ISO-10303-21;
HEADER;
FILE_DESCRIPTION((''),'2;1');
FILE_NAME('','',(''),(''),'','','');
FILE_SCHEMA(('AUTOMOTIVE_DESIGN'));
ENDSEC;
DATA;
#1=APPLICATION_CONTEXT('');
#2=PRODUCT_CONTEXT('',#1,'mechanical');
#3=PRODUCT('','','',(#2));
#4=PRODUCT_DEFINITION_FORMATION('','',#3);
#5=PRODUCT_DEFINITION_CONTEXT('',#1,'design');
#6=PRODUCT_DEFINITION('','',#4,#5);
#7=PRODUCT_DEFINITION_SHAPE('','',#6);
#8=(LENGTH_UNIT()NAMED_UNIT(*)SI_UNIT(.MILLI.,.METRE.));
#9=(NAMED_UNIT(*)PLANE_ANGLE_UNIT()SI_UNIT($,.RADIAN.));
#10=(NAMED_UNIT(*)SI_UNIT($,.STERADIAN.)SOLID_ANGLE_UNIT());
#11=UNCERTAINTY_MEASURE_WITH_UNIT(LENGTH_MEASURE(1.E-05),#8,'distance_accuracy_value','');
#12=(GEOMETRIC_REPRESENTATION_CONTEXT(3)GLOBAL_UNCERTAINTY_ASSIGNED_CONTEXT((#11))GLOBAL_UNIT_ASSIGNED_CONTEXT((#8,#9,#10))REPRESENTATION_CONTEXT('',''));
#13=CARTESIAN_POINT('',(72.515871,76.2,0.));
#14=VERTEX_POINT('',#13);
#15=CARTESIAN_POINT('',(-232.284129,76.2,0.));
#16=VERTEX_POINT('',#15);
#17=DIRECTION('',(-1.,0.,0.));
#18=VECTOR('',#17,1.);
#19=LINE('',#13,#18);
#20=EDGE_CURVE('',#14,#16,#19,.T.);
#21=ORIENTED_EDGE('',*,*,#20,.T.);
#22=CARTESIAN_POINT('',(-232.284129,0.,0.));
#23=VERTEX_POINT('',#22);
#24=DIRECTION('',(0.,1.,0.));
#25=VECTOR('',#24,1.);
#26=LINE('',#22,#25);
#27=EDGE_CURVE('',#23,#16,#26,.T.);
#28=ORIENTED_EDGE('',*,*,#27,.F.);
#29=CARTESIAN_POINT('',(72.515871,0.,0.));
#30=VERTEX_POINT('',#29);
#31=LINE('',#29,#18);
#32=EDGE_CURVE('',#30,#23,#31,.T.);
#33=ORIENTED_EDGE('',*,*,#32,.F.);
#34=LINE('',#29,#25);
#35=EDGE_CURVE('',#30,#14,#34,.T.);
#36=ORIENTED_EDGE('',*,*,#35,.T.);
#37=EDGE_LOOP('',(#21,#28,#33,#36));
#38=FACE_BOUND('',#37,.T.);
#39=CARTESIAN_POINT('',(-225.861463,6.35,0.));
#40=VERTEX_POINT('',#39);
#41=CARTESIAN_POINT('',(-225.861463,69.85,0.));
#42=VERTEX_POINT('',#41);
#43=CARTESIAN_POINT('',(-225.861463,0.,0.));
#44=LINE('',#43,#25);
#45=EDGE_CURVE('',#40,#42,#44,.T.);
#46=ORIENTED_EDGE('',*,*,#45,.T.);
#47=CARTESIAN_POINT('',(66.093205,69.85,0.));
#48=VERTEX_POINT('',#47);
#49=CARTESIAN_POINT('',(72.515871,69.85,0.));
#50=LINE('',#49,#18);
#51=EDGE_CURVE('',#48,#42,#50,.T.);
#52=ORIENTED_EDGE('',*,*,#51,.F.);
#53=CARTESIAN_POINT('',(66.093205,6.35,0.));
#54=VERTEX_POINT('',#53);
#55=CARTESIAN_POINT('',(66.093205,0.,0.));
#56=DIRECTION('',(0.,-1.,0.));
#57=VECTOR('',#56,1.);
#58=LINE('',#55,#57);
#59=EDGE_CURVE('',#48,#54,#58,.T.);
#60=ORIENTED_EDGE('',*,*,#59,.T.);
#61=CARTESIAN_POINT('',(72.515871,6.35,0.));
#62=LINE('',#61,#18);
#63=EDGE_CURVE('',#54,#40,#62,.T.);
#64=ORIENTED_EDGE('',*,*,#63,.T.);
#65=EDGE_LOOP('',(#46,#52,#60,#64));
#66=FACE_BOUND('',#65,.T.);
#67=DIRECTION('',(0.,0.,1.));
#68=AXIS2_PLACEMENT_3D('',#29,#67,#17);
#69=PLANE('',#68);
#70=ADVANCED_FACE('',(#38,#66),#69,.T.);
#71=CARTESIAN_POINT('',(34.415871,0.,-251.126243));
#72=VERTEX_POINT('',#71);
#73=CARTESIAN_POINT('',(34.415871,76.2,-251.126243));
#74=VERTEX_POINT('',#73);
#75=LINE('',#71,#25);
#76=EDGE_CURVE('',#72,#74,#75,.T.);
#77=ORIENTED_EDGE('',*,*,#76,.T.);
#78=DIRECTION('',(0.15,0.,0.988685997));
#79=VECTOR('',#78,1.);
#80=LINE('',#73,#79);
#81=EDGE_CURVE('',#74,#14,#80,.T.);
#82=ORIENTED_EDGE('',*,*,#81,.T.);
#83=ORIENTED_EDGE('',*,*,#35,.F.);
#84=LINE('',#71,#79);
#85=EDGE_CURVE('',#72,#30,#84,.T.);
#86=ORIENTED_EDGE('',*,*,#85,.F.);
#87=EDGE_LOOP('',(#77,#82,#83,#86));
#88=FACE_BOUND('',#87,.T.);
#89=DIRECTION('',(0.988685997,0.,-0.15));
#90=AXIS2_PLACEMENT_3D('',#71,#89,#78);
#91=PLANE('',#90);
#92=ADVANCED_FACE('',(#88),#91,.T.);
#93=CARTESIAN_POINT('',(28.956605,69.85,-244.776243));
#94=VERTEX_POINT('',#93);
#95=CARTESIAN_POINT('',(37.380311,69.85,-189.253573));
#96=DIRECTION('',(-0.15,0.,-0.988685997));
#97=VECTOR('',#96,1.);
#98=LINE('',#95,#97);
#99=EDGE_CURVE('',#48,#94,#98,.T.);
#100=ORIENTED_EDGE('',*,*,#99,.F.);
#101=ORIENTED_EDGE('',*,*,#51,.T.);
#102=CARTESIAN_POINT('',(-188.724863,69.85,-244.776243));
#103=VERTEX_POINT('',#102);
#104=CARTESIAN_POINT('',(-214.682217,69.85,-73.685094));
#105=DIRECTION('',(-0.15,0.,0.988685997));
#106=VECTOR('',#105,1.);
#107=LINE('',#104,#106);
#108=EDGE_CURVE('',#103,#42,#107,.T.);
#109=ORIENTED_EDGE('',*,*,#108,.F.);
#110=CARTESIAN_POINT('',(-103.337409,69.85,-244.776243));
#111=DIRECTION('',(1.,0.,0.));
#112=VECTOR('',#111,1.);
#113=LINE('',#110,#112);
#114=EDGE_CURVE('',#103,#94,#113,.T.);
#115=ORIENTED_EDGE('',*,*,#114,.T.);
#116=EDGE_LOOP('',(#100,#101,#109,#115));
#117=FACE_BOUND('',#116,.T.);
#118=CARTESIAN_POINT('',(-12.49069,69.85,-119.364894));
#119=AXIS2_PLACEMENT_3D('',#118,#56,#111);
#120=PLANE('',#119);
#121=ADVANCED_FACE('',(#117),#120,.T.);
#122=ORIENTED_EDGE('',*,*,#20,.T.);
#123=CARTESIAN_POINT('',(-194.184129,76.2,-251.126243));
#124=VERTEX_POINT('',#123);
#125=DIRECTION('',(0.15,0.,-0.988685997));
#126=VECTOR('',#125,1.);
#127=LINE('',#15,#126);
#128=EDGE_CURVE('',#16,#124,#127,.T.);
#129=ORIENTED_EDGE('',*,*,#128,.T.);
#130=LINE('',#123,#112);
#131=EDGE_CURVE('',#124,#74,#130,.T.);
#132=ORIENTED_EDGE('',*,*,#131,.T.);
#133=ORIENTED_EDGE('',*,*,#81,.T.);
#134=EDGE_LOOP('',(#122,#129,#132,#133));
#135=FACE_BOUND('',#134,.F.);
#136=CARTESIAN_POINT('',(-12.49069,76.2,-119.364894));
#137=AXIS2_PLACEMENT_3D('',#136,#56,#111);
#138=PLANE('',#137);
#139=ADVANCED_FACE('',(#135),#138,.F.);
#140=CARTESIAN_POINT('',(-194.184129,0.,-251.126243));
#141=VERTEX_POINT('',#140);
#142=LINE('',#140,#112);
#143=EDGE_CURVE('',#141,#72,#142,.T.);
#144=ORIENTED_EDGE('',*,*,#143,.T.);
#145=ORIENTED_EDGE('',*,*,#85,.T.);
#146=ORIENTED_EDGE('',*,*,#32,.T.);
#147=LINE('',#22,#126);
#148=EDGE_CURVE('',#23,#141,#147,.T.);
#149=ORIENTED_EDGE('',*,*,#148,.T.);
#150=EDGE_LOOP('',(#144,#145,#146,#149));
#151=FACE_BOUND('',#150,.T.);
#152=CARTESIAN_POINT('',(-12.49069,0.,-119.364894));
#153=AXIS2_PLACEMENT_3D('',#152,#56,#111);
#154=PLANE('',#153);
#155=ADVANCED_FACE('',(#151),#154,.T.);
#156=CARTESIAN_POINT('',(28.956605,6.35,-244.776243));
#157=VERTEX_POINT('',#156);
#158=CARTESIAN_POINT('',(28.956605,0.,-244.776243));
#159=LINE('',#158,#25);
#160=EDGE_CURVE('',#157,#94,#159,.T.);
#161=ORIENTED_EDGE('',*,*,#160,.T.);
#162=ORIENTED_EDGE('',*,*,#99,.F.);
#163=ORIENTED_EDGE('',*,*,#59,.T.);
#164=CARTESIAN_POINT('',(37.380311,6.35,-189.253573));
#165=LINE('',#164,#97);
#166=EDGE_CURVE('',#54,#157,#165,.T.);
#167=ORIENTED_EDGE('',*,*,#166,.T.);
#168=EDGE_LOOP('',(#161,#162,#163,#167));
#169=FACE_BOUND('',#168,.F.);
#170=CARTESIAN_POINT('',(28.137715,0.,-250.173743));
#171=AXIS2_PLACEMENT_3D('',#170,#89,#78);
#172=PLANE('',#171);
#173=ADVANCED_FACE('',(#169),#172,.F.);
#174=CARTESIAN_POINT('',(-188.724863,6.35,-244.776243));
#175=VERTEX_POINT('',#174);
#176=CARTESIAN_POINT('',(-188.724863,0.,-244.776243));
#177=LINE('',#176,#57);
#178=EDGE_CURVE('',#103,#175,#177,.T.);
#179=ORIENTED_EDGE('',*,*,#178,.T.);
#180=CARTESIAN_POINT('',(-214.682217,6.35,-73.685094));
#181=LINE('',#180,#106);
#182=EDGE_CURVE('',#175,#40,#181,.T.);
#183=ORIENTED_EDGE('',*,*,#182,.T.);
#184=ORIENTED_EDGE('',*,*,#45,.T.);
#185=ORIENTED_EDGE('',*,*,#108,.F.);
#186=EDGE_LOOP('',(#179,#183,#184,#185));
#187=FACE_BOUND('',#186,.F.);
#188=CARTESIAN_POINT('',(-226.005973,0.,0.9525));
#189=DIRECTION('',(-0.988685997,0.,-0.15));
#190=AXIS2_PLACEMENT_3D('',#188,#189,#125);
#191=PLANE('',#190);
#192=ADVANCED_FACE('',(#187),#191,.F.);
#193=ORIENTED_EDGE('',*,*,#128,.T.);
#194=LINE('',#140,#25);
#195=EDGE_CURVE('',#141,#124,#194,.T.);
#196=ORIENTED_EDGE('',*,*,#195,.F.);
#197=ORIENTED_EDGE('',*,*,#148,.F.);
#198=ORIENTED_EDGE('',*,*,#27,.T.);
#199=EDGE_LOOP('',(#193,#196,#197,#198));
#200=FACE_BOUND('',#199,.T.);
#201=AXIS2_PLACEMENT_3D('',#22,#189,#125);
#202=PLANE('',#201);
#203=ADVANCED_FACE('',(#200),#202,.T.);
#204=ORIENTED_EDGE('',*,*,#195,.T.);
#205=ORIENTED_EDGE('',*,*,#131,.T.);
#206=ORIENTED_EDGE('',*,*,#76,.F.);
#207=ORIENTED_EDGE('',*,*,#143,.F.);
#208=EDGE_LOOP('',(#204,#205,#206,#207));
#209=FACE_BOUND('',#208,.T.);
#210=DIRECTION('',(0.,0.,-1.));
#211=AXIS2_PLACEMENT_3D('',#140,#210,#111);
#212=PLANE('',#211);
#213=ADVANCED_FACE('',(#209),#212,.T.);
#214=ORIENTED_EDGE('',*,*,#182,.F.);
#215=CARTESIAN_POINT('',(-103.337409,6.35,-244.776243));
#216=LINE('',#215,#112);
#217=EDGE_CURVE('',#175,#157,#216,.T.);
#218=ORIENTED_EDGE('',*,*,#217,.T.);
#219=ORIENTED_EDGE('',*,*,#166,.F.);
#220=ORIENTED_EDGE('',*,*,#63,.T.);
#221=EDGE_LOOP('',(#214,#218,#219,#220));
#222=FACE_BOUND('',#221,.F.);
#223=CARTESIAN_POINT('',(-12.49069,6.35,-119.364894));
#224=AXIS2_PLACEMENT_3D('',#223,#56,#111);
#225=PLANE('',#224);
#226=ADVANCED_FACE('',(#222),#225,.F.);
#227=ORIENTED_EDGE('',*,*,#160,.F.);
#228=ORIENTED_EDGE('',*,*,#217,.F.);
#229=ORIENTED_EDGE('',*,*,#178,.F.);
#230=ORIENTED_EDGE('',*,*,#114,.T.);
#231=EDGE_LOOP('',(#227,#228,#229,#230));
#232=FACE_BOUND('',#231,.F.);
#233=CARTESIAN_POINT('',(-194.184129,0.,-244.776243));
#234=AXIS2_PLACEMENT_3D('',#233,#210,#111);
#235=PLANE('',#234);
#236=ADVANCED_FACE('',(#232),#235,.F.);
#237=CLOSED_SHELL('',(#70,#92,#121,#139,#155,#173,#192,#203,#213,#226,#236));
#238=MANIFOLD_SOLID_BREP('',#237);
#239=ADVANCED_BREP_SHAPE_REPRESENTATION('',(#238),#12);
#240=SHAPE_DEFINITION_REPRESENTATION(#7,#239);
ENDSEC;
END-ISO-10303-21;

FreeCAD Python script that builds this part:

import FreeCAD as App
import Part
import Sketcher
Q = App.Units.Quantity


def faces_at(feature, points):
    """Names of the faces that lie closest to the given points."""
    faces = feature.Shape.Faces
    near = lambda p: min(range(len(faces)), key=lambda i: faces[i].distToShape(Part.Vertex(*p))[0])
    return sorted({f"Face{near(p) + 1}" for p in points})

doc = App.newDocument("Part")
body = doc.addObject("PartDesign::Body", "Body")

# Sketch on XZ plane
sketch1 = body.newObject("Sketcher::SketchObject", "Sketch")
sketch1.AttachmentSupport = (doc.getObject("XZ_Plane"), [""])
sketch1.MapMode = "FlatFace"
sketch1.addGeometry([
    Part.LineSegment(App.Vector(72.515871, 0, 0), App.Vector(-232.284129, 0, 0)),
    Part.LineSegment(App.Vector(-232.284129, 0, 0), App.Vector(-194.184129, -251.126243, 0)),
    Part.LineSegment(App.Vector(-194.184129, -251.126243, 0), App.Vector(34.415871, -251.126243, 0)),
    Part.LineSegment(App.Vector(34.415871, -251.126243, 0), App.Vector(72.515871, 0, 0)),
], False)
sketch1.addConstraint([
    Sketcher.Constraint("Coincident", 0, 2, 1, 1),
    Sketcher.Constraint("Coincident", 1, 2, 2, 1),
    Sketcher.Constraint("Coincident", 2, 2, 3, 1),
    Sketcher.Constraint("Coincident", 3, 2, 0, 1),
    Sketcher.Constraint("Horizontal", 0),
    Sketcher.Constraint("Horizontal", 2),
    Sketcher.Constraint("PointOnObject", 0, 2, -1),
    Sketcher.Constraint("Equal", 1, 3),
    Sketcher.Constraint("DistanceX", 0, 2, 0, 1, Q("12 in")),
    Sketcher.Constraint("DistanceX", 2, 1, 2, 2, Q("9 in")),
    Sketcher.Constraint("Distance", 1, Q("10 in")),
    Sketcher.Constraint("DistanceX", 0, 2, -1, 1, Q("232.284129 mm")),
])
pad1 = body.newObject("PartDesign::Pad", "Pad")
pad1.Profile = sketch1
pad1.Length = Q("3 in")
pad1.Reversed = True
doc.recompute()

thickness = body.newObject("PartDesign::Thickness", "Thickness")
thickness.Base = (pad1, faces_at(pad1, [(-79.884, 38.1, 0)]))
thickness.Value = Q("0.25 in")
thickness.Reversed = True
thickness.Join = "Arc"

doc.recompute()
